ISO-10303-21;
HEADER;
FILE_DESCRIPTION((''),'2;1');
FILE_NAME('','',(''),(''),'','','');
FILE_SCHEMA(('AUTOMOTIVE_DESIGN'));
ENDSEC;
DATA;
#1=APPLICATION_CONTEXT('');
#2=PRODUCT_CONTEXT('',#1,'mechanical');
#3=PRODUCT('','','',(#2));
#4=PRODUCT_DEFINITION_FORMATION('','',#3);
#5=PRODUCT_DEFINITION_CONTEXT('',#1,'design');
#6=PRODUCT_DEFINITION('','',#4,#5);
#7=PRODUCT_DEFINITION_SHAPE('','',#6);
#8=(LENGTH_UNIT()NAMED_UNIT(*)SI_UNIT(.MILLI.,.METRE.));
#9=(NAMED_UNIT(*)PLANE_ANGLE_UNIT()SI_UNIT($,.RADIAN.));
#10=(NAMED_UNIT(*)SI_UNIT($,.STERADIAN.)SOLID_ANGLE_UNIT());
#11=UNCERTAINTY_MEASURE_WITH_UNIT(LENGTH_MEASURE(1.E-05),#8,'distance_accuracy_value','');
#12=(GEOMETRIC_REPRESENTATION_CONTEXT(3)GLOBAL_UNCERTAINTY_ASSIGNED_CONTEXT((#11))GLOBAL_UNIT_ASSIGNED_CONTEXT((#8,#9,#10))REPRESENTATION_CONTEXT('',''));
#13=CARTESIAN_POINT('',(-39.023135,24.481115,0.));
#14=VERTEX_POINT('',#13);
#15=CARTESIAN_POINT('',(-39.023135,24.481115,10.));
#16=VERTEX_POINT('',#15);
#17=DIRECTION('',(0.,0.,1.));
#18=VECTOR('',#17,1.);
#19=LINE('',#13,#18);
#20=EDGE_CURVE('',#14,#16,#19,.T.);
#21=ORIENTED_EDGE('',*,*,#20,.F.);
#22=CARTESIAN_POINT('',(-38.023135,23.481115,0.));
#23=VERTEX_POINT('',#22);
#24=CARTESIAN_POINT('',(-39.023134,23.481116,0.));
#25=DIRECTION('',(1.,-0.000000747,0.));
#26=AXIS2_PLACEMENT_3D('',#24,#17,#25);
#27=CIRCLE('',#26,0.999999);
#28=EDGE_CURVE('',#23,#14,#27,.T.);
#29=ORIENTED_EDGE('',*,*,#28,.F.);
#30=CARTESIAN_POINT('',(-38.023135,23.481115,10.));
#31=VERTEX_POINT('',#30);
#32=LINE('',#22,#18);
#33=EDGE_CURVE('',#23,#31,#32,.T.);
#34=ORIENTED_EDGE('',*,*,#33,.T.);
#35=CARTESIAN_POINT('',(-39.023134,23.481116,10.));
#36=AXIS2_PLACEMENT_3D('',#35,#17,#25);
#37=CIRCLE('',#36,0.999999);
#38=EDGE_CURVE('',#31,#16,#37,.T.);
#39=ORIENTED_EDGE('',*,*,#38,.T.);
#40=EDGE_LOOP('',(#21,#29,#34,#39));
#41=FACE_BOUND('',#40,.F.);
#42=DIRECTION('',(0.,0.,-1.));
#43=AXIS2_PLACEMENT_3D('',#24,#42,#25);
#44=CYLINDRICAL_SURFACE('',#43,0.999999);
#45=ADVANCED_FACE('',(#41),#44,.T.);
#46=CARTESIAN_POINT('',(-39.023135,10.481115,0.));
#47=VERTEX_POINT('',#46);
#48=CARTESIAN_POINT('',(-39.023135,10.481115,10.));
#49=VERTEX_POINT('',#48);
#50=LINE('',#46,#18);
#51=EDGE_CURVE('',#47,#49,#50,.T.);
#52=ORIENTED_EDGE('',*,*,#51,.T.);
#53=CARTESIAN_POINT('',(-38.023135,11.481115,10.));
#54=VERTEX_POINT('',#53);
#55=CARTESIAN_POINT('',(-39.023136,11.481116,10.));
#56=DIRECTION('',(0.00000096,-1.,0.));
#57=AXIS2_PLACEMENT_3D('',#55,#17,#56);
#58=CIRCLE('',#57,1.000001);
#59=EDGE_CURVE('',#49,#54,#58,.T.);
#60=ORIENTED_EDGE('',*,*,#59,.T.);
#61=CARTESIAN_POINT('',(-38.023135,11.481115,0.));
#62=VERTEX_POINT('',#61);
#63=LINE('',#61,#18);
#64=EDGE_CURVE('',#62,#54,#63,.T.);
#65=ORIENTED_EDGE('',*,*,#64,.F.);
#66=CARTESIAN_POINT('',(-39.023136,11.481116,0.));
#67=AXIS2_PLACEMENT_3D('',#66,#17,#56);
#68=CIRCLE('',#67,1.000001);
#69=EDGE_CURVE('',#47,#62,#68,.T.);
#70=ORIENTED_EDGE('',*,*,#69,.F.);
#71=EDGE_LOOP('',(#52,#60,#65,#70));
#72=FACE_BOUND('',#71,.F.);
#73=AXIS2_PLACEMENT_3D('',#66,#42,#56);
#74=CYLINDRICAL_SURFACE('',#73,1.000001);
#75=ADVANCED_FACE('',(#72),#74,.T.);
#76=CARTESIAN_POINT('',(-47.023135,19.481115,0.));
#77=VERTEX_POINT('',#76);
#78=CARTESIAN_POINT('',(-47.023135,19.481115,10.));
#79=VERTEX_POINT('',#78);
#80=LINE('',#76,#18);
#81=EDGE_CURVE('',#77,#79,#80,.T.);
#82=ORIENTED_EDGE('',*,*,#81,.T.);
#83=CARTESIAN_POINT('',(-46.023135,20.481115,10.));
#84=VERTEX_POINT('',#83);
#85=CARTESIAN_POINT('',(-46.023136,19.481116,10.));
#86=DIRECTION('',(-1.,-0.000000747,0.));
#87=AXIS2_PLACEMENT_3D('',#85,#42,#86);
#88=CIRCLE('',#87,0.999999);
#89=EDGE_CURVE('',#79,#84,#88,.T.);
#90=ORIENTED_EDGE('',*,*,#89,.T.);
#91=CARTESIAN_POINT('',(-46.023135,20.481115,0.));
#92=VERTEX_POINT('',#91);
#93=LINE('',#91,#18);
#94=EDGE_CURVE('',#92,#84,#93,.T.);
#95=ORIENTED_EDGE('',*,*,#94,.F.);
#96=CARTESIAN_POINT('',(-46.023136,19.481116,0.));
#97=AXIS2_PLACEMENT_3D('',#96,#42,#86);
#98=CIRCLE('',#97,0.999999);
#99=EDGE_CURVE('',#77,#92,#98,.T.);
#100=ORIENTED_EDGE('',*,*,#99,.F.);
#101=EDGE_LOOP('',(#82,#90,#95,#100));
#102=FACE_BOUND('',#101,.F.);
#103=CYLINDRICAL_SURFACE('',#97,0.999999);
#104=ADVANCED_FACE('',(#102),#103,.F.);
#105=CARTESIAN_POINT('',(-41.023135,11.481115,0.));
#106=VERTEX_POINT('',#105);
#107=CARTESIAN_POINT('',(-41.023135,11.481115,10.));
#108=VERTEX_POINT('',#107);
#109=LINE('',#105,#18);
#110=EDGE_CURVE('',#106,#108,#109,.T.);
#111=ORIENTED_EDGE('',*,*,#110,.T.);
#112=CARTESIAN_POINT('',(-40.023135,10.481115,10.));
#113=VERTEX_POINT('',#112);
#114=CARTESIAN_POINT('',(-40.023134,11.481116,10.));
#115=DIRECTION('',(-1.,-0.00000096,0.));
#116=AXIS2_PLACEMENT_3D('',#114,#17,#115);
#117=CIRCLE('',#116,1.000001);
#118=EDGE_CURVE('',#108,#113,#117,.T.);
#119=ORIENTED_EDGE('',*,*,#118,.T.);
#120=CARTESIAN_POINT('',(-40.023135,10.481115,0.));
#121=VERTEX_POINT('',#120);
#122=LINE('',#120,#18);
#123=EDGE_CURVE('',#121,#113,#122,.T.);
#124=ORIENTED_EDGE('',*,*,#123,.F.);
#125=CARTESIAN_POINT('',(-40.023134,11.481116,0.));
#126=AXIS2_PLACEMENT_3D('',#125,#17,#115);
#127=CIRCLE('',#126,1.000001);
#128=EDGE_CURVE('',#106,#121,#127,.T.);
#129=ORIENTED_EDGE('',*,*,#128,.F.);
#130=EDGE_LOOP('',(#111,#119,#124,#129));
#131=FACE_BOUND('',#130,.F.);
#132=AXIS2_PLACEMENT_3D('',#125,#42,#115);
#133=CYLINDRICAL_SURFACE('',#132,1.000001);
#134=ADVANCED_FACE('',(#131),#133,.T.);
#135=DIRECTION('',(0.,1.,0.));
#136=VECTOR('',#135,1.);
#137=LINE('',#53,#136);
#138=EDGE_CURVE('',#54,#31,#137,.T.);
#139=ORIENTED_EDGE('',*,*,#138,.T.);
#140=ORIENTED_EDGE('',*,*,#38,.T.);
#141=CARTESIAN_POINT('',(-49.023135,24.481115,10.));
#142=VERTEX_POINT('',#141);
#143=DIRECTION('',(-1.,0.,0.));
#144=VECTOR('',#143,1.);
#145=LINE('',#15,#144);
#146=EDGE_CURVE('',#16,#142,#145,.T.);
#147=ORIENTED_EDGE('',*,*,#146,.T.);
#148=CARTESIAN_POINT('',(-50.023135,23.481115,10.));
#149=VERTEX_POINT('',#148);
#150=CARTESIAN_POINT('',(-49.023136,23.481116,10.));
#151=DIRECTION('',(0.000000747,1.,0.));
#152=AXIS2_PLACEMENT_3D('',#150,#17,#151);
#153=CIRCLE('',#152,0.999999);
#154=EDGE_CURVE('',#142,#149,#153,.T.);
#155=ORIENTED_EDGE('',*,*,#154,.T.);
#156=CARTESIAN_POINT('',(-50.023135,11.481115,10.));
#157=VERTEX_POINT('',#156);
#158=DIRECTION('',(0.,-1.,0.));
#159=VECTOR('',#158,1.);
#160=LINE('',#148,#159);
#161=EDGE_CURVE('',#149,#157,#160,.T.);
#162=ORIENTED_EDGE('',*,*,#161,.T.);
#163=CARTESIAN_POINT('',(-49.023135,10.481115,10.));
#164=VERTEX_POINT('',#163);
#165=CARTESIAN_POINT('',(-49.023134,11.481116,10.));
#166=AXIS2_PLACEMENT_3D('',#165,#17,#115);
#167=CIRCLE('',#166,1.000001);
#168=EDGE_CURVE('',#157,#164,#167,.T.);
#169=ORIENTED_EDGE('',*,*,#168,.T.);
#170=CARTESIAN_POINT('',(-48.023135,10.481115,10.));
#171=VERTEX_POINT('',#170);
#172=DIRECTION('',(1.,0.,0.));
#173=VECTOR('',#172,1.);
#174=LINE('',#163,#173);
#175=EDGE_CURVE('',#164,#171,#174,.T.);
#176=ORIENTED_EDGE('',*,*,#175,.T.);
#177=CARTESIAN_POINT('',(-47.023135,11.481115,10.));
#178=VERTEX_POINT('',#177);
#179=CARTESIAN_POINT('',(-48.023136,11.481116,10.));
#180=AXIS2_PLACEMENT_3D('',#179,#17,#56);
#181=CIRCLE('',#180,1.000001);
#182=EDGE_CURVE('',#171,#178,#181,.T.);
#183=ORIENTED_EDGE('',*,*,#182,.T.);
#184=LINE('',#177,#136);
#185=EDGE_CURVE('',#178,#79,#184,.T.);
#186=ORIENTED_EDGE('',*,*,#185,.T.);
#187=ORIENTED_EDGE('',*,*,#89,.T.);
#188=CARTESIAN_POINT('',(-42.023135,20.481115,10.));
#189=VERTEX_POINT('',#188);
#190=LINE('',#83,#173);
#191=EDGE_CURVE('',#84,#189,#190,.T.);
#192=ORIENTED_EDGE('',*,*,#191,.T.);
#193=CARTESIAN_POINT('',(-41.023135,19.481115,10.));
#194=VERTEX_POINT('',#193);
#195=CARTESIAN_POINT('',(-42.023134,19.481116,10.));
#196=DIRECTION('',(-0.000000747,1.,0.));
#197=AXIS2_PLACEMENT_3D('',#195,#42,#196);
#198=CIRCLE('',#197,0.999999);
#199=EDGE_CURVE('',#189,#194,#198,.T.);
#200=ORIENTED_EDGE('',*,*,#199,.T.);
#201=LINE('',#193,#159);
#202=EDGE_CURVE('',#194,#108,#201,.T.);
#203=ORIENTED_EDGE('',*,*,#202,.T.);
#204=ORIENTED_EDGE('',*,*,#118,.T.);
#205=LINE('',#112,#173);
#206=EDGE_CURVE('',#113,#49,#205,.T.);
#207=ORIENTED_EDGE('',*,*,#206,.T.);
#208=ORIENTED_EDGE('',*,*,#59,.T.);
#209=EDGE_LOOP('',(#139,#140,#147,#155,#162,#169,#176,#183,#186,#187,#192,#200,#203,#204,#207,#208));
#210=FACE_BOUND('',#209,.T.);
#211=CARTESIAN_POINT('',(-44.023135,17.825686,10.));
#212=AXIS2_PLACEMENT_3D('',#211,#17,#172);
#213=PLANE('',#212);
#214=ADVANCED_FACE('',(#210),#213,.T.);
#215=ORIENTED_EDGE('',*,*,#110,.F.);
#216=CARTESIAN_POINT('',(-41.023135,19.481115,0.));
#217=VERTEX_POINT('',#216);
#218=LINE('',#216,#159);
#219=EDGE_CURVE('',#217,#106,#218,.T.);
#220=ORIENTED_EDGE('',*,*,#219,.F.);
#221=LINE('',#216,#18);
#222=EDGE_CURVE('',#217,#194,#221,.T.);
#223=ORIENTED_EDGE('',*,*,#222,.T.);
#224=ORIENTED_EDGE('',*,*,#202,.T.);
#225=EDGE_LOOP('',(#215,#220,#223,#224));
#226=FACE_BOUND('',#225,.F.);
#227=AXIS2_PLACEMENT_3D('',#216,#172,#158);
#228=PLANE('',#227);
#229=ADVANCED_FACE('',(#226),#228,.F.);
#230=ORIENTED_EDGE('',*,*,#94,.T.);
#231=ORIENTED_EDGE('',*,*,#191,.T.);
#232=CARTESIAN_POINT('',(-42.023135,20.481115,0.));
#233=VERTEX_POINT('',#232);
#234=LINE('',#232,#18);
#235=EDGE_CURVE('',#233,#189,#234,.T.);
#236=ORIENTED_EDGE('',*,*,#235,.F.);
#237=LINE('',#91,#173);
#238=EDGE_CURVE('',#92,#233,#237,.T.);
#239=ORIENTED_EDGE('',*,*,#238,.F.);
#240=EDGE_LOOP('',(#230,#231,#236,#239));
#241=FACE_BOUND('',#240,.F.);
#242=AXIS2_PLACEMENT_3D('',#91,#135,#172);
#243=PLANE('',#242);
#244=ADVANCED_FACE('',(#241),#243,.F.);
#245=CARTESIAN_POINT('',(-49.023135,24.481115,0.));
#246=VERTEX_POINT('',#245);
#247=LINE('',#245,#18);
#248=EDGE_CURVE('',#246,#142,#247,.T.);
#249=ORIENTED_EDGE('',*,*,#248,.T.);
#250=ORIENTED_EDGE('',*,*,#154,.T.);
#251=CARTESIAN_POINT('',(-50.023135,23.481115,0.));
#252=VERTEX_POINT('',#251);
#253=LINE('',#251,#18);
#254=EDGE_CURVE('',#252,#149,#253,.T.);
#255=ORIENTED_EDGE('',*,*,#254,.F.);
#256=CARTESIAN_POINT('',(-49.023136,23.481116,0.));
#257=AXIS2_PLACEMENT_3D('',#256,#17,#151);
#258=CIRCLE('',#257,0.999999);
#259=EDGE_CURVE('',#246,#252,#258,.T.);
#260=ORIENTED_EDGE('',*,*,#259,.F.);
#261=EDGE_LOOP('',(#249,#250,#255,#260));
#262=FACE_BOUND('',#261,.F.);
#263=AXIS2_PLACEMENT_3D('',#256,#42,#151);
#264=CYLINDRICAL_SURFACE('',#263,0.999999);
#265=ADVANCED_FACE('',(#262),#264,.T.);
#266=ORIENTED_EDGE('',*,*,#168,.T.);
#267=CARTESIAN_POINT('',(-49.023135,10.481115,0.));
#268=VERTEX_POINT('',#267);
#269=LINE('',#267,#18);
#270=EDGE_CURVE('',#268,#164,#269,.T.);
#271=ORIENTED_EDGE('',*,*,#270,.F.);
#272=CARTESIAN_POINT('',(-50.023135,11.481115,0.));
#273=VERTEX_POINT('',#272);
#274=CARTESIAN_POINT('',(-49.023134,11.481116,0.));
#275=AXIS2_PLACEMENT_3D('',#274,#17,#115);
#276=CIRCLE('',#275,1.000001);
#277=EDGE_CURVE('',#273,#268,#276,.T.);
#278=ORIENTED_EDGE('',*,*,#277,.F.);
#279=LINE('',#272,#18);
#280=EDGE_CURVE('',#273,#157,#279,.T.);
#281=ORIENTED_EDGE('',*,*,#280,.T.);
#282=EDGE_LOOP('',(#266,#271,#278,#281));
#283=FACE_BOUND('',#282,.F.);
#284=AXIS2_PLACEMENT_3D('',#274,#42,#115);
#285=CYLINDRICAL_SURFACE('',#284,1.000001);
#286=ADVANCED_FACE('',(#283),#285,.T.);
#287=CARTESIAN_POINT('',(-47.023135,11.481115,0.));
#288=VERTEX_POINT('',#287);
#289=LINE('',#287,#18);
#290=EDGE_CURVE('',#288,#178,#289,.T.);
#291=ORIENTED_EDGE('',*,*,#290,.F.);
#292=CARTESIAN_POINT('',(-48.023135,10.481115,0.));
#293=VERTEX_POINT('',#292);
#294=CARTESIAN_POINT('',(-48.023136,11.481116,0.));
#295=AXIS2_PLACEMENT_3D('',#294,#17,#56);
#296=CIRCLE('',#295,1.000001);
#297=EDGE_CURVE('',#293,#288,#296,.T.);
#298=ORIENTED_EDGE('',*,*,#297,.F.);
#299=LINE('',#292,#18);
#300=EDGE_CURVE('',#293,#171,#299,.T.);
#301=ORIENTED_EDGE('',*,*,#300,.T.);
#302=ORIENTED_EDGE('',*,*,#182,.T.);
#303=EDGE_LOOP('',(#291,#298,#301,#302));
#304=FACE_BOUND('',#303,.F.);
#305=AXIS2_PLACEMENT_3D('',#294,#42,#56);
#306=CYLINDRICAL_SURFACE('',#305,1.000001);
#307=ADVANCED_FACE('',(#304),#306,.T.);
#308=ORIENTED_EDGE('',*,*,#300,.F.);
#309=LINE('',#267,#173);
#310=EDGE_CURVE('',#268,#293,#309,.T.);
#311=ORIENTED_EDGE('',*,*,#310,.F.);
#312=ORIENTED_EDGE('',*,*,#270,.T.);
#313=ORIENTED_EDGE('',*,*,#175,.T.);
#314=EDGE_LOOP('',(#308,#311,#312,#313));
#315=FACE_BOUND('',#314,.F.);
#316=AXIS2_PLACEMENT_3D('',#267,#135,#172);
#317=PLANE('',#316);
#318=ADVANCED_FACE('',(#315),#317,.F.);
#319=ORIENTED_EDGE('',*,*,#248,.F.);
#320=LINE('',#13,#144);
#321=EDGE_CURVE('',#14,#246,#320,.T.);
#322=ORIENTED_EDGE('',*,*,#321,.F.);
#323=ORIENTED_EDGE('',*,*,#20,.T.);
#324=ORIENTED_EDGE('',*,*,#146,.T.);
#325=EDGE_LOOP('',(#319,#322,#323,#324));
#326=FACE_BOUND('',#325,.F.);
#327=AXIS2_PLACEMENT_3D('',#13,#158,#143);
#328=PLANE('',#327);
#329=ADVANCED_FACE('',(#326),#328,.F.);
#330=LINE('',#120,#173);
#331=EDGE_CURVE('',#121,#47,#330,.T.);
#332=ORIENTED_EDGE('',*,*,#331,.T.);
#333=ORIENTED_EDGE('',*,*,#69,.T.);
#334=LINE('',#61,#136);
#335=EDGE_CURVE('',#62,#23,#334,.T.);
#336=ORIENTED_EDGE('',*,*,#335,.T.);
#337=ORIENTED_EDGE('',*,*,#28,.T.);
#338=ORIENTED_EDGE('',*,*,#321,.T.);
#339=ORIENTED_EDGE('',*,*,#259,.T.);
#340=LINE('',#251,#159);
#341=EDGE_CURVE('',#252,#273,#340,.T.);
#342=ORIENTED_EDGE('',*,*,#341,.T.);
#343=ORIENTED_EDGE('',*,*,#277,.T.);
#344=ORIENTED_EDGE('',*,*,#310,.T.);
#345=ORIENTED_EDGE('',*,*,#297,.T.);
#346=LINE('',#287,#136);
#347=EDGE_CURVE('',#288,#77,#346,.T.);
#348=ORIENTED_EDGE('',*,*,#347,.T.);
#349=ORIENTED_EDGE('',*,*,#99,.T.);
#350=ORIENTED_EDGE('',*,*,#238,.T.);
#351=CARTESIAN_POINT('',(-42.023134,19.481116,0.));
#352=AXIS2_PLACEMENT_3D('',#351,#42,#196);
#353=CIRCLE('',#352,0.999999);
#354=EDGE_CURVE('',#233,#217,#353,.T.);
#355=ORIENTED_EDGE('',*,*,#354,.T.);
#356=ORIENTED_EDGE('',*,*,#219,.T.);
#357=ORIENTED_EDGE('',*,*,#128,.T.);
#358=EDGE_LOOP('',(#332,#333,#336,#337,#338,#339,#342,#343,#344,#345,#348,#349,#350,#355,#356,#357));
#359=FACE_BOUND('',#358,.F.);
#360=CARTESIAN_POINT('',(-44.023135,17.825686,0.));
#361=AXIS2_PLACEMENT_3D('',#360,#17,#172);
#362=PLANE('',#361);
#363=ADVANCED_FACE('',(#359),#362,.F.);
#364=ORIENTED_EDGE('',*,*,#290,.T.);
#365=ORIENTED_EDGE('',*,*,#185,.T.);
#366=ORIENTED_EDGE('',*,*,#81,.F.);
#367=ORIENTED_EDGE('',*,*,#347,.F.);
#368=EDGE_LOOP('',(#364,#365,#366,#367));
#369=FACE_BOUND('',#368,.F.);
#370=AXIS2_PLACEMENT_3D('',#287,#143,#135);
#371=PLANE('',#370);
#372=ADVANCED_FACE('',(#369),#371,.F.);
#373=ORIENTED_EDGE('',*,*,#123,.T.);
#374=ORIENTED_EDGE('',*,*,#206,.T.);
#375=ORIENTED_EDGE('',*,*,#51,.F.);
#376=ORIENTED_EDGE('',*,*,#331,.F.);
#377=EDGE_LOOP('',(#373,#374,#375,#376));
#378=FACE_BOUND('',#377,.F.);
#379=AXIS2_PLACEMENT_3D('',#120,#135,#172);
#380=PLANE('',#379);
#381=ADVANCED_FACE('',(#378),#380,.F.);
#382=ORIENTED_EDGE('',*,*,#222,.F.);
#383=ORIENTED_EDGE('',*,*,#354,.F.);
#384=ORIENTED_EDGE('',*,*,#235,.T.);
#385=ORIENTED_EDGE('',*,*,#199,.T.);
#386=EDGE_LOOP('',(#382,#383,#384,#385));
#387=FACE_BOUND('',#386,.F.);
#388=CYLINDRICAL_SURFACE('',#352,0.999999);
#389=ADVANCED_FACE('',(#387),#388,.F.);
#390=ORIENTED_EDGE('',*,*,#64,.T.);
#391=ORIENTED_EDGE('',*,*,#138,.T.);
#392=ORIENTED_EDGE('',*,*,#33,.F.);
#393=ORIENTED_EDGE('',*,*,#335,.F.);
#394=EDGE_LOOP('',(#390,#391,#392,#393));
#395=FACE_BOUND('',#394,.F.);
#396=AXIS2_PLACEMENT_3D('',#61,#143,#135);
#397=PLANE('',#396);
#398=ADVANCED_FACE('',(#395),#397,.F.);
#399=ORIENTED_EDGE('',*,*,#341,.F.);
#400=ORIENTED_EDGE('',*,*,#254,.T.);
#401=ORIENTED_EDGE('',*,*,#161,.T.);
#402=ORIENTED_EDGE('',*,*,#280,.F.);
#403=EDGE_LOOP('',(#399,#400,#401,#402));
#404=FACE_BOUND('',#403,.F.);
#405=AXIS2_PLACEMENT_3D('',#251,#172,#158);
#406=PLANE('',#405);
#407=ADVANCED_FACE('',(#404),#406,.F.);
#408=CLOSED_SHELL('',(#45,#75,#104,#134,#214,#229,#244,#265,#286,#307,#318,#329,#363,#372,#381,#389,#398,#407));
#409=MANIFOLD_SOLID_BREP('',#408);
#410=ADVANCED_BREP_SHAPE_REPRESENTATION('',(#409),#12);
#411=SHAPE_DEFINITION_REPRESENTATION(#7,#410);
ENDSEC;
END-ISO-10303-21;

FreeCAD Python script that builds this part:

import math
import FreeCAD as App
import Part
import Sketcher
from FreeCAD import Vector
Q = App.Units.Quantity

doc = App.newDocument("Part")
params = doc.addObject("Spreadsheet::Sheet", "Params")
for row, (alias, value) in enumerate([
    ("sketch1_radius", "0.999999 mm"),
    ("sketch1_width", "4 mm"),
    ("sketch1_width2", "1 mm"),
    ("sketch1_height", "8 mm"),
    ("sketch1_height2", "12 mm"),
    ("pad1_length", "10 mm"),
], start=1):
    params.set(f"A{row}", alias)
    params.set(f"B{row}", "=" + value)
    params.setAlias(f"B{row}", alias)

body = doc.addObject("PartDesign::Body", "Body")

sketch1 = body.newObject("Sketcher::SketchObject", "Sketch")
sketch1.AttachmentSupport = (doc.getObject("XY_Plane"), [""])
sketch1.MapMode = "FlatFace"
sketch1.addGeometry([
    Part.ArcOfCircle(Part.Circle(Vector(-46, 19.5, 0), Vector(0, 0, 1), 1), math.radians(90), math.radians(180)),
    Part.LineSegment(Vector(-46, 20.5, 0), Vector(-42, 20.5, 0)),
    Part.ArcOfCircle(Part.Circle(Vector(-42, 19.5, 0), Vector(0, 0, 1), 1), math.radians(0), math.radians(90)),
    Part.LineSegment(Vector(-41, 19.5, 0), Vector(-41, 11.5, 0)),
    Part.ArcOfCircle(Part.Circle(Vector(-40, 11.5, 0), Vector(0, 0, 1), 1), math.radians(-180), math.radians(-90)),
    Part.LineSegment(Vector(-40, 10.5, 0), Vector(-39, 10.5, 0)),
    Part.ArcOfCircle(Part.Circle(Vector(-39, 11.5, 0), Vector(0, 0, 1), 1), math.radians(-90), math.radians(0)),
    Part.LineSegment(Vector(-38, 11.5, 0), Vector(-38, 23.5, 0)),
    Part.ArcOfCircle(Part.Circle(Vector(-39, 23.5, 0), Vector(0, 0, 1), 1), math.radians(0), math.radians(90)),
    Part.LineSegment(Vector(-39, 24.5, 0), Vector(-49, 24.5, 0)),
    Part.ArcOfCircle(Part.Circle(Vector(-49, 23.5, 0), Vector(0, 0, 1), 1), math.radians(90), math.radians(180)),
    Part.LineSegment(Vector(-50, 23.5, 0), Vector(-50, 11.5, 0)),
    Part.ArcOfCircle(Part.Circle(Vector(-49, 11.5, 0), Vector(0, 0, 1), 1), math.radians(-180), math.radians(-90)),
    Part.LineSegment(Vector(-49, 10.5, 0), Vector(-48, 10.5, 0)),
    Part.ArcOfCircle(Part.Circle(Vector(-48, 11.5, 0), Vector(0, 0, 1), 1), math.radians(-90), math.radians(0)),
    Part.LineSegment(Vector(-47, 11.5, 0), Vector(-47, 19.5, 0)),
], False)
sketch1.addConstraint([
    Sketcher.Constraint("Tangent", 0, 1, 1, 1),
    Sketcher.Constraint("Tangent", 1, 2, 2, 2),
    Sketcher.Constraint("Tangent", 2, 1, 3, 1),
    Sketcher.Constraint("Tangent", 3, 2, 4, 1),
    Sketcher.Constraint("Tangent", 4, 2, 5, 1),
    Sketcher.Constraint("Tangent", 5, 2, 6, 1),
    Sketcher.Constraint("Tangent", 6, 2, 7, 1),
    Sketcher.Constraint("Tangent", 7, 2, 8, 1),
    Sketcher.Constraint("Tangent", 8, 2, 9, 1),
    Sketcher.Constraint("Tangent", 9, 2, 10, 1),
    Sketcher.Constraint("Tangent", 10, 2, 11, 1),
    Sketcher.Constraint("Tangent", 11, 2, 12, 1),
    Sketcher.Constraint("Tangent", 12, 2, 13, 1),
    Sketcher.Constraint("Tangent", 13, 2, 14, 1),
    Sketcher.Constraint("Tangent", 14, 2, 15, 1),
    Sketcher.Constraint("Tangent", 15, 2, 0, 2),
    Sketcher.Constraint("Horizontal", 1),
    Sketcher.Constraint("Vertical", 3),
    Sketcher.Constraint("Horizontal", 5),
    Sketcher.Constraint("Vertical", 7),
    Sketcher.Constraint("Horizontal", 9),
    Sketcher.Constraint("Vertical", 11),
    Sketcher.Constraint("Horizontal", 13),
    Sketcher.Constraint("Vertical", 15),
    Sketcher.Constraint("Equal", 0, 2),
    Sketcher.Constraint("Equal", 2, 4),
    Sketcher.Constraint("Equal", 4, 6),
    Sketcher.Constraint("Equal", 6, 8),
    Sketcher.Constraint("Equal", 8, 10),
    Sketcher.Constraint("Equal", 10, 12),
    Sketcher.Constraint("Equal", 12, 14),
    Sketcher.Constraint("Horizontal", 6, 3, 12, 3),
    Sketcher.Constraint("Equal", 5, 13),
    Sketcher.Constraint("Radius", 0, Q("0.999999 mm")),
    Sketcher.Constraint("DistanceX", 1, 1, 1, 2, Q("4 mm")),
    Sketcher.Constraint("DistanceX", 5, 1, 5, 2, Q("1 mm")),
    Sketcher.Constraint("DistanceY", 3, 2, 3, 1, Q("8 mm")),
    Sketcher.Constraint("DistanceY", 7, 1, 7, 2, Q("12 mm")),
    Sketcher.Constraint("DistanceX", 0, 3, -1, 1, Q("46.023136 mm")),
    Sketcher.Constraint("DistanceY", -1, 1, 0, 3, Q("19.481116 mm")),
])
sketch1.setExpression("Constraints[33]", "Params.sketch1_radius")
sketch1.setExpression("Constraints[34]", "Params.sketch1_width")
sketch1.setExpression("Constraints[35]", "Params.sketch1_width2")
sketch1.setExpression("Constraints[36]", "Params.sketch1_height")
sketch1.setExpression("Constraints[37]", "Params.sketch1_height2")
pad1 = body.newObject("PartDesign::Pad", "Pad")
pad1.Profile = sketch1
pad1.setExpression("Length", "Params.pad1_length")

doc.recompute()
